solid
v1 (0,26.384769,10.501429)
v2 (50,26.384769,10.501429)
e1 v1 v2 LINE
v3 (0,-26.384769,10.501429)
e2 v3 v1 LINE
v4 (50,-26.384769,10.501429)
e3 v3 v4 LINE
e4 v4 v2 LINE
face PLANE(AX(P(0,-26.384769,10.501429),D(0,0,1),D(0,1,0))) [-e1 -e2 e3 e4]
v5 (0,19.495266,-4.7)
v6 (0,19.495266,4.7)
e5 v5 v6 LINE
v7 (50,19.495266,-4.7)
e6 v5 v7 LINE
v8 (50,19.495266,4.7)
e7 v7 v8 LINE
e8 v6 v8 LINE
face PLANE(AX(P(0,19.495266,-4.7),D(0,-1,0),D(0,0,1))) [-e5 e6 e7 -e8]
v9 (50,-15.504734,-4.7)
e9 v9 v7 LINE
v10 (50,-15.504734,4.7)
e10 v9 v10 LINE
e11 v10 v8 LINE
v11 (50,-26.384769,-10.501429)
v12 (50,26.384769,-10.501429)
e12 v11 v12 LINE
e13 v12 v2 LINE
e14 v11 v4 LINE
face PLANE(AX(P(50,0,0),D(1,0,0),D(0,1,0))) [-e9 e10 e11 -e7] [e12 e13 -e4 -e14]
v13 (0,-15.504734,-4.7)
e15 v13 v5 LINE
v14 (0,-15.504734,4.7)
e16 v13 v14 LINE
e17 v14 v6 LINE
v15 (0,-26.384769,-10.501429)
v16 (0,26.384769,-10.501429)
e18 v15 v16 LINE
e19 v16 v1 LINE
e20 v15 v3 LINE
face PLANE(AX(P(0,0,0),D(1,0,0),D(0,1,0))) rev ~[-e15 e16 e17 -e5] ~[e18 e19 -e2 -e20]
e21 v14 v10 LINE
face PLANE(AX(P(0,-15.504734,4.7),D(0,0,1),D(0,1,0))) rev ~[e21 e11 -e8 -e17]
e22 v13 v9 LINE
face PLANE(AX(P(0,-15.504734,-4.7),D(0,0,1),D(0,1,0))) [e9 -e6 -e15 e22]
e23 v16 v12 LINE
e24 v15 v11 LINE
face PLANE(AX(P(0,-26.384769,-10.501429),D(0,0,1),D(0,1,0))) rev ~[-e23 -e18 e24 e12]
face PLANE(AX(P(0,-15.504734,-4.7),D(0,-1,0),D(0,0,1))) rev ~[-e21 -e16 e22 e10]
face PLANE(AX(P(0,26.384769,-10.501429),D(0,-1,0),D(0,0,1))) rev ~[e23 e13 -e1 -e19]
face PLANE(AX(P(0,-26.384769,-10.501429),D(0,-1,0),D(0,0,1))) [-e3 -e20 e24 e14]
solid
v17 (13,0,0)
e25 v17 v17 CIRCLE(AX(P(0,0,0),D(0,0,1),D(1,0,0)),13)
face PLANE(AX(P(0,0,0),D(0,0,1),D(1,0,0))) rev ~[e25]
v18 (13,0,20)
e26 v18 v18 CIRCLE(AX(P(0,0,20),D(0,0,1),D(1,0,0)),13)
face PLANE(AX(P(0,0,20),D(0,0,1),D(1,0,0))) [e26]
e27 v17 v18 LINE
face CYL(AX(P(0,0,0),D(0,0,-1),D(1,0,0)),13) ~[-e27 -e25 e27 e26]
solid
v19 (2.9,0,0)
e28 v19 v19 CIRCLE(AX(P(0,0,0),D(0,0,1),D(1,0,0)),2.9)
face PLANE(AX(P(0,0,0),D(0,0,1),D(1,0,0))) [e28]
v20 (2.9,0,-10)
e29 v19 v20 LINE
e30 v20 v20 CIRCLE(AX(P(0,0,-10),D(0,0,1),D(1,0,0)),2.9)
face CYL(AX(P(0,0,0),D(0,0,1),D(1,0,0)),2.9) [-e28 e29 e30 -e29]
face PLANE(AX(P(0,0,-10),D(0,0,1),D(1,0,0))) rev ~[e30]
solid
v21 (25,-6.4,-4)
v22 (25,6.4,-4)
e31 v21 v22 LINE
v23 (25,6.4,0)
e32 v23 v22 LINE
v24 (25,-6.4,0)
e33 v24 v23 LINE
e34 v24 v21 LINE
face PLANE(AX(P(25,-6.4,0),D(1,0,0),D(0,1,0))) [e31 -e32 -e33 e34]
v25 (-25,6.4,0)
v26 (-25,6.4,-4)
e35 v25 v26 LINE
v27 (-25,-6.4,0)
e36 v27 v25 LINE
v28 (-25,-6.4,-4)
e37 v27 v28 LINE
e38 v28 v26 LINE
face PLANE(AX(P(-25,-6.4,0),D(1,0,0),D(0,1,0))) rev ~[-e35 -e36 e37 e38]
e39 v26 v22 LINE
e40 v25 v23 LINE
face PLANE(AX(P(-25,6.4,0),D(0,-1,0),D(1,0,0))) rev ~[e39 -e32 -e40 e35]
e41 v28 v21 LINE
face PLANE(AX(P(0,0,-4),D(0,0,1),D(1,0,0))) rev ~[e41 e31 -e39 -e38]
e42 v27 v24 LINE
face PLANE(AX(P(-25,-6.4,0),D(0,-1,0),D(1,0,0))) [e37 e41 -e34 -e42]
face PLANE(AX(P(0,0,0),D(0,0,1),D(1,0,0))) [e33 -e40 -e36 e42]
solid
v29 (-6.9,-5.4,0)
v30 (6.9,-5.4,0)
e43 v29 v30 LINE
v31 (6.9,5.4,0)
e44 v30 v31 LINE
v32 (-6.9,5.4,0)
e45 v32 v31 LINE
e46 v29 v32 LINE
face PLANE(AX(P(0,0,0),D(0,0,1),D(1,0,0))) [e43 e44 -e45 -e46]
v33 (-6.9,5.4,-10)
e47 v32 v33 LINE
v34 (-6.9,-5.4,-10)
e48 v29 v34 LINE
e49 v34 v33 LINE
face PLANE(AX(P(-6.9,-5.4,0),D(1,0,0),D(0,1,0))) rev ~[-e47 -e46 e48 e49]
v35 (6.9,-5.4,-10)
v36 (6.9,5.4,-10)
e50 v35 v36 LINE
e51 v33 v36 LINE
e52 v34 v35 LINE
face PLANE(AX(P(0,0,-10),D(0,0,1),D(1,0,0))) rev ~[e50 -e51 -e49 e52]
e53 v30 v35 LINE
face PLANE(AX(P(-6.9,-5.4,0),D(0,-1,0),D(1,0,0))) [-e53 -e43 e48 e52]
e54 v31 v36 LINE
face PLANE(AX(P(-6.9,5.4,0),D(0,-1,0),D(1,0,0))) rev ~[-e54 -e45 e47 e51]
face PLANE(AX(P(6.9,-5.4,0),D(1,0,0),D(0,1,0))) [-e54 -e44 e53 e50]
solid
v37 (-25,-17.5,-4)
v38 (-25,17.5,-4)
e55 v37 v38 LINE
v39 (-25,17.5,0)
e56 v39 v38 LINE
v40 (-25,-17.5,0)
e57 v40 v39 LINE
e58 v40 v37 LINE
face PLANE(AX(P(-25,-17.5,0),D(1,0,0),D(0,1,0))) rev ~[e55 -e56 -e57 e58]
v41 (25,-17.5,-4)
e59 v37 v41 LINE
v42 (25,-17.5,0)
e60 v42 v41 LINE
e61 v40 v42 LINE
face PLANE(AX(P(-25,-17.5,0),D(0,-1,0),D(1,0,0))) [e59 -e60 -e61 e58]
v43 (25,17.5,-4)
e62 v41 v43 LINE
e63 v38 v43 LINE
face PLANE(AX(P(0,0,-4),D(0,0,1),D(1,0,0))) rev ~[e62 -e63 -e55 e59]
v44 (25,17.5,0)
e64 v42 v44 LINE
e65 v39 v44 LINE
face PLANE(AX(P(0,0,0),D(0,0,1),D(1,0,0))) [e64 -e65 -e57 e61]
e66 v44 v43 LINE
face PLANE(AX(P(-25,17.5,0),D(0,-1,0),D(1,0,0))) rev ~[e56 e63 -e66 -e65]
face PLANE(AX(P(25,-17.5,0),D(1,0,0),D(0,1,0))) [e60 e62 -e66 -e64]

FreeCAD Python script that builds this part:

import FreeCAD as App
import Part
import Sketcher

V = App.Vector
Q = App.Units.Quantity

doc = App.newDocument("Part")
body = doc.addObject("PartDesign::Body", "Body")

sketch1 = doc.addObject("Sketcher::SketchObject", "Sketch")
body.addObject(sketch1)
sketch1.AttachmentSupport = (doc.XY_Plane, [""])
sketch1.MapMode = "FlatFace"
sketch1.addGeometry(Part.Circle(V(0, 0, 0), V(0, 0, 1), 13), False)
sketch1.addConstraint(Sketcher.Constraint("Coincident", 0, 3, -1, 1))
sketch1.addConstraint(Sketcher.Constraint("Diameter", 0, Q("26 mm")))
pad1 = doc.addObject("PartDesign::Pad", "Pad")
body.addObject(pad1)
pad1.Profile = sketch1
pad1.Length = 20
body2 = doc.addObject("PartDesign::Body", "Body001")

sketch2 = doc.addObject("Sketcher::SketchObject", "Sketch001")
body2.addObject(sketch2)
sketch2.AttachmentSupport = (doc.getObject("XY_Plane001"), [""])
sketch2.MapMode = "FlatFace"
sketch2.addGeometry(Part.LineSegment(V(-6.9, 5.4, 0), V(-6.9, -5.4, 0)), False)
sketch2.addGeometry(Part.LineSegment(V(-6.9, -5.4, 0), V(6.9, -5.4, 0)), False)
sketch2.addGeometry(Part.LineSegment(V(6.9, -5.4, 0), V(6.9, 5.4, 0)), False)
sketch2.addGeometry(Part.LineSegment(V(6.9, 5.4, 0), V(-6.9, 5.4, 0)), False)
sketch2.addConstraint(Sketcher.Constraint("Coincident", 0, 2, 1, 1))
sketch2.addConstraint(Sketcher.Constraint("Coincident", 1, 2, 2, 1))
sketch2.addConstraint(Sketcher.Constraint("Coincident", 2, 2, 3, 1))
sketch2.addConstraint(Sketcher.Constraint("Coincident", 3, 2, 0, 1))
sketch2.addConstraint(Sketcher.Constraint("Vertical", 0))
sketch2.addConstraint(Sketcher.Constraint("Horizontal", 1))
sketch2.addConstraint(Sketcher.Constraint("Vertical", 2))
sketch2.addConstraint(Sketcher.Constraint("Horizontal", 3))
sketch2.addConstraint(Sketcher.Constraint("Symmetric", 0, 2, 2, 2, -1, 1))
sketch2.addConstraint(Sketcher.Constraint("DistanceX", 1, 1, 1, 2, Q("13.8 mm")))
sketch2.addConstraint(Sketcher.Constraint("DistanceY", 0, 2, 0, 1, Q("10.8 mm")))
pad2 = doc.addObject("PartDesign::Pad", "Pad001")
body2.addObject(pad2)
pad2.Profile = sketch2
pad2.Length = 10
pad2.Reversed = True
body3 = doc.addObject("PartDesign::Body", "Body002")

sketch3 = doc.addObject("Sketcher::SketchObject", "Sketch002")
body3.addObject(sketch3)
sketch3.AttachmentSupport = (doc.getObject("XY_Plane002"), [""])
sketch3.MapMode = "FlatFace"
sketch3.addGeometry(Part.Circle(V(0, 0, 0), V(0, 0, 1), 2.9), False)
sketch3.addConstraint(Sketcher.Constraint("Coincident", 0, 3, -1, 1))
sketch3.addConstraint(Sketcher.Constraint("Diameter", 0, Q("5.8 mm")))
pad3 = doc.addObject("PartDesign::Pad", "Pad002")
body3.addObject(pad3)
pad3.Profile = sketch3
pad3.Length = 10
pad3.Reversed = True
body4 = doc.addObject("PartDesign::Body", "Body003")

sketch4 = doc.addObject("Sketcher::SketchObject", "Sketch003")
body4.addObject(sketch4)
sketch4.AttachmentSupport = (doc.getObject("XY_Plane003"), [""])
sketch4.MapMode = "FlatFace"
sketch4.addGeometry(Part.LineSegment(V(-25, 6.4, 0), V(-25, -6.4, 0)), False)
sketch4.addGeometry(Part.LineSegment(V(-25, -6.4, 0), V(25, -6.4, 0)), False)
sketch4.addGeometry(Part.LineSegment(V(25, -6.4, 0), V(25, 6.4, 0)), False)
sketch4.addGeometry(Part.LineSegment(V(25, 6.4, 0), V(-25, 6.4, 0)), False)
sketch4.addConstraint(Sketcher.Constraint("Coincident", 0, 2, 1, 1))
sketch4.addConstraint(Sketcher.Constraint("Coincident", 1, 2, 2, 1))
sketch4.addConstraint(Sketcher.Constraint("Coincident", 2, 2, 3, 1))
sketch4.addConstraint(Sketcher.Constraint("Coincident", 3, 2, 0, 1))
sketch4.addConstraint(Sketcher.Constraint("Vertical", 0))
sketch4.addConstraint(Sketcher.Constraint("Horizontal", 1))
sketch4.addConstraint(Sketcher.Constraint("Vertical", 2))
sketch4.addConstraint(Sketcher.Constraint("Horizontal", 3))
sketch4.addConstraint(Sketcher.Constraint("Symmetric", 0, 2, 2, 2, -1, 1))
sketch4.addConstraint(Sketcher.Constraint("DistanceX", 1, 1, 1, 2, Q("50 mm")))
sketch4.addConstraint(Sketcher.Constraint("DistanceY", 0, 2, 0, 1, Q("12.8 mm")))
pad4 = doc.addObject("PartDesign::Pad", "Pad003")
body4.addObject(pad4)
pad4.Profile = sketch4
pad4.Length = 4
pad4.Reversed = True
body5 = doc.addObject("PartDesign::Body", "Body004")

sketch5 = doc.addObject("Sketcher::SketchObject", "Sketch004")
body5.addObject(sketch5)
sketch5.AttachmentSupport = (doc.getObject("XY_Plane004"), [""])
sketch5.MapMode = "FlatFace"
sketch5.addGeometry(Part.LineSegment(V(-25, 17.5, 0), V(-25, -17.5, 0)), False)
sketch5.addGeometry(Part.LineSegment(V(-25, -17.5, 0), V(25, -17.5, 0)), False)
sketch5.addGeometry(Part.LineSegment(V(25, -17.5, 0), V(25, 17.5, 0)), False)
sketch5.addGeometry(Part.LineSegment(V(25, 17.5, 0), V(-25, 17.5, 0)), False)
sketch5.addConstraint(Sketcher.Constraint("Coincident", 0, 2, 1, 1))
sketch5.addConstraint(Sketcher.Constraint("Coincident", 1, 2, 2, 1))
sketch5.addConstraint(Sketcher.Constraint("Coincident", 2, 2, 3, 1))
sketch5.addConstraint(Sketcher.Constraint("Coincident", 3, 2, 0, 1))
sketch5.addConstraint(Sketcher.Constraint("Vertical", 0))
sketch5.addConstraint(Sketcher.Constraint("Horizontal", 1))
sketch5.addConstraint(Sketcher.Constraint("Vertical", 2))
sketch5.addConstraint(Sketcher.Constraint("Horizontal", 3))
sketch5.addConstraint(Sketcher.Constraint("Symmetric", 0, 2, 2, 2, -1, 1))
sketch5.addConstraint(Sketcher.Constraint("DistanceX", 1, 1, 1, 2, Q("50 mm")))
sketch5.addConstraint(Sketcher.Constraint("DistanceY", 0, 2, 0, 1, Q("35 mm")))
pad5 = doc.addObject("PartDesign::Pad", "Pad004")
body5.addObject(pad5)
pad5.Profile = sketch5
pad5.Length = 4
pad5.Reversed = True
body6 = doc.addObject("PartDesign::Body", "Body005")

sketch6 = doc.addObject("Sketcher::SketchObject", "Sketch005")
body6.addObject(sketch6)
sketch6.AttachmentSupport = (doc.getObject("YZ_Plane005"), [""])
sketch6.MapMode = "FlatFace"
sketch6.addGeometry(Part.LineSegment(V(-26.384769, 10.501429, 0), V(-26.384769, -10.501429, 0)), False)
sketch6.addGeometry(Part.LineSegment(V(-26.384769, -10.501429, 0), V(26.384769, -10.501429, 0)), False)
sketch6.addGeometry(Part.LineSegment(V(26.384769, -10.501429, 0), V(26.384769, 10.501429, 0)), False)
sketch6.addGeometry(Part.LineSegment(V(26.384769, 10.501429, 0), V(-26.384769, 10.501429, 0)), False)
sketch6.addGeometry(Part.LineSegment(V(19.495266, -4.7, 0), V(-15.504734, -4.7, 0)), False)
sketch6.addGeometry(Part.LineSegment(V(-15.504734, -4.7, 0), V(-15.504734, 4.7, 0)), False)
sketch6.addGeometry(Part.LineSegment(V(-15.504734, 4.7, 0), V(19.495266, 4.7, 0)), False)
sketch6.addGeometry(Part.LineSegment(V(19.495266, 4.7, 0), V(19.495266, -4.7, 0)), False)
sketch6.addConstraint(Sketcher.Constraint("Coincident", 0, 2, 1, 1))
sketch6.addConstraint(Sketcher.Constraint("Coincident", 1, 2, 2, 1))
sketch6.addConstraint(Sketcher.Constraint("Coincident", 2, 2, 3, 1))
sketch6.addConstraint(Sketcher.Constraint("Coincident", 3, 2, 0, 1))
sketch6.addConstraint(Sketcher.Constraint("Coincident", 4, 2, 5, 1))
sketch6.addConstraint(Sketcher.Constraint("Coincident", 5, 2, 6, 1))
sketch6.addConstraint(Sketcher.Constraint("Coincident", 6, 2, 7, 1))
sketch6.addConstraint(Sketcher.Constraint("Coincident", 7, 2, 4, 1))
sketch6.addConstraint(Sketcher.Constraint("Vertical", 0))
sketch6.addConstraint(Sketcher.Constraint("Horizontal", 1))
sketch6.addConstraint(Sketcher.Constraint("Vertical", 2))
sketch6.addConstraint(Sketcher.Constraint("Horizontal", 3))
sketch6.addConstraint(Sketcher.Constraint("Horizontal", 4))
sketch6.addConstraint(Sketcher.Constraint("Vertical", 5))
sketch6.addConstraint(Sketcher.Constraint("Horizontal", 6))
sketch6.addConstraint(Sketcher.Constraint("Vertical", 7))
sketch6.addConstraint(Sketcher.Constraint("Symmetric", 0, 2, 2, 2, -1, 1))
sketch6.addConstraint(Sketcher.Constraint("DistanceX", 4, 2, 4, 1, Q("35 mm")))
sketch6.addConstraint(Sketcher.Constraint("DistanceY", 5, 1, 5, 2, Q("9.4 mm")))
sketch6.addConstraint(Sketcher.Constraint("DistanceY", 4, 2, -1, 1, Q("4.7 mm")))
sketch6.addConstraint(Sketcher.Constraint("DistanceY", 0, 2, 0, 1, Q("21.002858 mm")))
sketch6.addConstraint(Sketcher.Constraint("DistanceX", 1, 1, 1, 2, Q("52.769538 mm")))
sketch6.addConstraint(Sketcher.Constraint("DistanceX", 4, 2, -1, 1, Q("15.504734 mm")))
pad6 = doc.addObject("PartDesign::Pad", "Pad005")
body6.addObject(pad6)
pad6.Profile = sketch6
pad6.Length = 50

doc.recompute()
